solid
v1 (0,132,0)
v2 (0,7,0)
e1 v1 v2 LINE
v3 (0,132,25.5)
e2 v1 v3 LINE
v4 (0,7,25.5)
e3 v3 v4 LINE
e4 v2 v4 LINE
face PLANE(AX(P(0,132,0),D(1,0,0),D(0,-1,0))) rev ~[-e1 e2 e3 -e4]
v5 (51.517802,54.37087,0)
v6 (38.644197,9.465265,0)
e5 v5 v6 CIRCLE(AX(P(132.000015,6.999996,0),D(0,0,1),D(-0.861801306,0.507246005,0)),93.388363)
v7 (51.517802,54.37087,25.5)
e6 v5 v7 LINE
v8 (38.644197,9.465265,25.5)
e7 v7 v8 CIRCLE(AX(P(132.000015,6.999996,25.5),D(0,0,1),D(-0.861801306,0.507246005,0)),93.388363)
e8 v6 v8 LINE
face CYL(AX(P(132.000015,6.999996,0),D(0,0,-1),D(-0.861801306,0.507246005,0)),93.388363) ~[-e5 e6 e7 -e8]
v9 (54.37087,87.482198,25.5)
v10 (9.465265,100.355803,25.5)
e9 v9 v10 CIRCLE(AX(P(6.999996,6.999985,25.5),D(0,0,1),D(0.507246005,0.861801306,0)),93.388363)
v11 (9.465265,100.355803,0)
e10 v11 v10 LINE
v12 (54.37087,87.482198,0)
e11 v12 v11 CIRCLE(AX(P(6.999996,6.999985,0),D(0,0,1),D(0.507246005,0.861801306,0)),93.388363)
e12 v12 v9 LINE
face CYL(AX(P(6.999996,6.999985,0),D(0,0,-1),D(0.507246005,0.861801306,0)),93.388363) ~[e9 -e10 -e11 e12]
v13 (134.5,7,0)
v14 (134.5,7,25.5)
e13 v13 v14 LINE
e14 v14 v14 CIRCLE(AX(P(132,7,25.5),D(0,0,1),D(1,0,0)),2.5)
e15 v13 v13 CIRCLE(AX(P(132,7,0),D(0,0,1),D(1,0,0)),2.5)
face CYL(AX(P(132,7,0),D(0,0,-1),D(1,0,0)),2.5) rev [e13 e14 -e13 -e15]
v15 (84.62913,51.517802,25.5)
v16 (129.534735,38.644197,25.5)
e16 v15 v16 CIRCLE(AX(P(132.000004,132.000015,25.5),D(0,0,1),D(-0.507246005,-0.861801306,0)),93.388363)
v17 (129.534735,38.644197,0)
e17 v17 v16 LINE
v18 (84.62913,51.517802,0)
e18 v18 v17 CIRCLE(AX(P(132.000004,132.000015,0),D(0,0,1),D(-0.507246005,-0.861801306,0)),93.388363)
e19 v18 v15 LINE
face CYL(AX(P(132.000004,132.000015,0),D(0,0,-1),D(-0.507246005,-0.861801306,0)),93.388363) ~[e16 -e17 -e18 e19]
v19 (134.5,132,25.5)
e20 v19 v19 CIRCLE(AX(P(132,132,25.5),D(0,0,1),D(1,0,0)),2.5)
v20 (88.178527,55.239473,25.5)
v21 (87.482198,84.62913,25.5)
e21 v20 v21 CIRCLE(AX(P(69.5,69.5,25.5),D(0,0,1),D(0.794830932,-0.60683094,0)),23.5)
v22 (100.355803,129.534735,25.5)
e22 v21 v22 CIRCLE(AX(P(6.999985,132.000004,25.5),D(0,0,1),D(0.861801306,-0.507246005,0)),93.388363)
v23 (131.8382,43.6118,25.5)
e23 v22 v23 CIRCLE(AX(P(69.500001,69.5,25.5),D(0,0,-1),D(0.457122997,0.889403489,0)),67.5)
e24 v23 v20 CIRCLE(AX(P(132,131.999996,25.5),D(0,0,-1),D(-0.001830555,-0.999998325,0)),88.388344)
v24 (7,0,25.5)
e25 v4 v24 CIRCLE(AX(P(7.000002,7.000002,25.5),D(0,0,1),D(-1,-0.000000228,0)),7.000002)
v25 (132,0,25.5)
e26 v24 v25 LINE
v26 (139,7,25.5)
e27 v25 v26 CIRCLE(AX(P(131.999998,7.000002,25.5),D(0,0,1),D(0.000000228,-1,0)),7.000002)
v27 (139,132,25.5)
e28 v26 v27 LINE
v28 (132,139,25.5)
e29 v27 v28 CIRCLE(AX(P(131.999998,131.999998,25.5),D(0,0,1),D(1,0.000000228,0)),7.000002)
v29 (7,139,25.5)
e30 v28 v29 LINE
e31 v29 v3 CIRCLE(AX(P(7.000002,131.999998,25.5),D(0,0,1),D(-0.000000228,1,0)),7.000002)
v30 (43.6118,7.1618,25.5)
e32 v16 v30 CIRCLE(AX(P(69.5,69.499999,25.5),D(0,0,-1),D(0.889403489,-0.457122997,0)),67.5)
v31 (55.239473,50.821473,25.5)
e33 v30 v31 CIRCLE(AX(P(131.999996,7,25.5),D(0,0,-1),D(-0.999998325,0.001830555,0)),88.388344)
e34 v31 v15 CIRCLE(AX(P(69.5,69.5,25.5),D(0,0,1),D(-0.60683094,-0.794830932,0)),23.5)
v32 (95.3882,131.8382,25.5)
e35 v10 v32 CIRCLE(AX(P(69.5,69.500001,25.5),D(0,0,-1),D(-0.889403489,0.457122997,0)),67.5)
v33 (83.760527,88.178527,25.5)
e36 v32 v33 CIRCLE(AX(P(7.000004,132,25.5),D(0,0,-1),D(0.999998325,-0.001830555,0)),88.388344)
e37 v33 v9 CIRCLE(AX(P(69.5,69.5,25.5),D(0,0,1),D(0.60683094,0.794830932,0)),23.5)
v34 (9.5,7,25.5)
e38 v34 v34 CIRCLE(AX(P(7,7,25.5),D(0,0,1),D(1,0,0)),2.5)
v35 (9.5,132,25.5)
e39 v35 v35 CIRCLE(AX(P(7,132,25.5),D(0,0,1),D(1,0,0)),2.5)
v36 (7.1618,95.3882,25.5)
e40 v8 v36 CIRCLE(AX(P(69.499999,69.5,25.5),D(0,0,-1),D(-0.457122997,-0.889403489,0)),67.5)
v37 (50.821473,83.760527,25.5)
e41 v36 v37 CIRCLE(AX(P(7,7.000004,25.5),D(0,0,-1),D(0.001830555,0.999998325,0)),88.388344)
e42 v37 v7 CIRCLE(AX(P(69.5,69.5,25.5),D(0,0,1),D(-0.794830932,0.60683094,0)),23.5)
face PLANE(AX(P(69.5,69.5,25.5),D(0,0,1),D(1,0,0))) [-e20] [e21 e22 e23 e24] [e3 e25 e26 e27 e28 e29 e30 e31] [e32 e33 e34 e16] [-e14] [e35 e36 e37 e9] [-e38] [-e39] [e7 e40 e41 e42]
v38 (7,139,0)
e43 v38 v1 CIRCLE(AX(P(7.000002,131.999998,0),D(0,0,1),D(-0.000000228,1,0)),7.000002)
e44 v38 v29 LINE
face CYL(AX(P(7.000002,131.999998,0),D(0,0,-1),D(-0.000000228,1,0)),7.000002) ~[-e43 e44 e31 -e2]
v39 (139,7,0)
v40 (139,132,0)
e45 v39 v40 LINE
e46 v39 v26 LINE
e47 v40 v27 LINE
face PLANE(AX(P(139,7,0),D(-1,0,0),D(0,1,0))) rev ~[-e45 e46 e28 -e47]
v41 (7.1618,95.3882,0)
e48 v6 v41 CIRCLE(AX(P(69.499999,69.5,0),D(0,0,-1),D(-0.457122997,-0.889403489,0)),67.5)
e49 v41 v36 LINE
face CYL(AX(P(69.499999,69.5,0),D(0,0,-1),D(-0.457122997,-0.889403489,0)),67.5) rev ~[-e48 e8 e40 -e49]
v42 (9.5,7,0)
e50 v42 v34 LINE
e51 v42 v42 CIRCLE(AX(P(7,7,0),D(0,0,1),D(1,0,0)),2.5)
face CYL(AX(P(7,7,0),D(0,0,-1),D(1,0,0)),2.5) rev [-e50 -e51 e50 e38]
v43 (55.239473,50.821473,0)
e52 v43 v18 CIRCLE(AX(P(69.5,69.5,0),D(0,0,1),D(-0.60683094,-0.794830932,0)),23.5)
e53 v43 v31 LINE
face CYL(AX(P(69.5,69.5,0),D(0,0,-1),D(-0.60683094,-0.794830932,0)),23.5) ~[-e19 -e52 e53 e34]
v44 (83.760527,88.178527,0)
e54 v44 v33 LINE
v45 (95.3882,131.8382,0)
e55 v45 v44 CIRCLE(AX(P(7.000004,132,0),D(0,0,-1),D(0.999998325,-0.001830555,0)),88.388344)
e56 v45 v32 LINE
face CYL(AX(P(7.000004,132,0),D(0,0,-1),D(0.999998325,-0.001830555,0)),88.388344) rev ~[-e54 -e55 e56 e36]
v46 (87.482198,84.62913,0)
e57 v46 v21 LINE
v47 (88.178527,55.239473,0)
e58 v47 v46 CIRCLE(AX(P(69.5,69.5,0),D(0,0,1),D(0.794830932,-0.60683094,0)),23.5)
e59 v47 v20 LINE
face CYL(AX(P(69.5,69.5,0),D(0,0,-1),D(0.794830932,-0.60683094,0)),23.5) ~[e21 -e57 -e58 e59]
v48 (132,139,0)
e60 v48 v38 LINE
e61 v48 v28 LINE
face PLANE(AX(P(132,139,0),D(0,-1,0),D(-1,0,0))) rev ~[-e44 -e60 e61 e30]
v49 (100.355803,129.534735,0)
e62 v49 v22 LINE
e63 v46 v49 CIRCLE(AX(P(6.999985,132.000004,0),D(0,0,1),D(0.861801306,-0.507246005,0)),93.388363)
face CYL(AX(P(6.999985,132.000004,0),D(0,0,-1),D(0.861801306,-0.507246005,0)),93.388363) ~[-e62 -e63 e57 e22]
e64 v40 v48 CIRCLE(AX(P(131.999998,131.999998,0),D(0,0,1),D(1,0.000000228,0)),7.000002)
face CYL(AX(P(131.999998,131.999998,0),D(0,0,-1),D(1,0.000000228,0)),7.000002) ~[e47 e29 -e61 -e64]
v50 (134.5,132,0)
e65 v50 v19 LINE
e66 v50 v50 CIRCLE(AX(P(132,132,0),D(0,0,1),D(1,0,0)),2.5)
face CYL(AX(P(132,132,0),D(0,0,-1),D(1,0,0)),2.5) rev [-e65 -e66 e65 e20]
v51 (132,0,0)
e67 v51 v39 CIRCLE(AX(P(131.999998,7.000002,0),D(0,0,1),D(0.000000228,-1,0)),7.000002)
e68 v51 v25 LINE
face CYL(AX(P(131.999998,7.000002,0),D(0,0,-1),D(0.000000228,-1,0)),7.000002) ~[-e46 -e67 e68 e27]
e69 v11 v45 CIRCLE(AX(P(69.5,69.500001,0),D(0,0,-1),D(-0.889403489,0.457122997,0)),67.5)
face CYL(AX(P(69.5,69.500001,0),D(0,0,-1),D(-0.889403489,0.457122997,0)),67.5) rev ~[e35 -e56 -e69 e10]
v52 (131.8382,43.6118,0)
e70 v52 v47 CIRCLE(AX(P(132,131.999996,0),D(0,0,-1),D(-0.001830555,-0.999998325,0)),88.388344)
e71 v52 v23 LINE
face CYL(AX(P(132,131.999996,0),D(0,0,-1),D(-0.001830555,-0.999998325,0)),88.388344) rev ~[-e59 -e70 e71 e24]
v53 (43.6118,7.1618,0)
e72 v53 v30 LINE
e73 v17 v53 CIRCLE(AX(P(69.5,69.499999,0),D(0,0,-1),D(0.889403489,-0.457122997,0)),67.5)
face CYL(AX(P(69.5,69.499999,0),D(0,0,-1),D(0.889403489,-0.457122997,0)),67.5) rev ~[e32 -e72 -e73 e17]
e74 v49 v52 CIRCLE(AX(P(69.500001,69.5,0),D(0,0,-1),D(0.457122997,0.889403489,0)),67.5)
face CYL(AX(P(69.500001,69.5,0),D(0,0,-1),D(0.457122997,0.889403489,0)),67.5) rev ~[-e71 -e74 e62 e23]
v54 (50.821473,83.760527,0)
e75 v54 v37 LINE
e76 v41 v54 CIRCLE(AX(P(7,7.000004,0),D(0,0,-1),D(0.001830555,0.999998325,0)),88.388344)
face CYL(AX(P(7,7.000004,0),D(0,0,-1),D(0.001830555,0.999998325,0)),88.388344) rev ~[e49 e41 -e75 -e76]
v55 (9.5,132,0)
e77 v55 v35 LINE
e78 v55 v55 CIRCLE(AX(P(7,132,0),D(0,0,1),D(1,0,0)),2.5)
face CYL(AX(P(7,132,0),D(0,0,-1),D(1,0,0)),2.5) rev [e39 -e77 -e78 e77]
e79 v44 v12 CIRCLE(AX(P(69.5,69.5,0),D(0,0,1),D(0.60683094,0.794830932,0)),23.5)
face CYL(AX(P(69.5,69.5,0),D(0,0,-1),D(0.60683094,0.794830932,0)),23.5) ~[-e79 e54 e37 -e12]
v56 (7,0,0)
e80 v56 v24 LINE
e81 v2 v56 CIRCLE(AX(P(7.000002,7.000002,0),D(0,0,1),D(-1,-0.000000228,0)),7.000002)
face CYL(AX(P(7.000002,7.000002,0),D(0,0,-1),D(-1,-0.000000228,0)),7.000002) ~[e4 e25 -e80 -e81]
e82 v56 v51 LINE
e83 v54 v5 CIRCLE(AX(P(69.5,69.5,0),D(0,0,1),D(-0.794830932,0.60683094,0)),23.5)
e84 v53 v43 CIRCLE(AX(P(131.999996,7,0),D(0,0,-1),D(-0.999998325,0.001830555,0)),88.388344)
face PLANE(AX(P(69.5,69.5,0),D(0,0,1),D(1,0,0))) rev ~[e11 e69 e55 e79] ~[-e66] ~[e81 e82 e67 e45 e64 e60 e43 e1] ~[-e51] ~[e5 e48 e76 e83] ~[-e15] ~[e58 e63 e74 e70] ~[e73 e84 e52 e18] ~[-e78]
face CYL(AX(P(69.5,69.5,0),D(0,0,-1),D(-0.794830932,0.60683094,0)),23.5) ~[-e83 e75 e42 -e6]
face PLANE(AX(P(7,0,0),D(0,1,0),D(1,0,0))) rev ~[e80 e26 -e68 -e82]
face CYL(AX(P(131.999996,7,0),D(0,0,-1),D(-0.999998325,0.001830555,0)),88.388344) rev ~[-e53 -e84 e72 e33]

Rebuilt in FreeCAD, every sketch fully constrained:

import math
import FreeCAD as App
import Part
import Sketcher
from FreeCAD import Vector

doc = App.newDocument("Part")
body = doc.addObject("PartDesign::Body", "Body")

sketch1 = body.newObject("Sketcher::SketchObject", "Sketch")
sketch1.AttachmentSupport = (doc.getObject("XY_Plane"), [""])
sketch1.MapMode = "FlatFace"
sketch1.addGeometry(Part.ArcOfCircle(Part.Circle(Vector(7, 7, 0), Vector(0, 0, 1), 7), math.radians(-180), math.radians(-90)), False)
sketch1.addGeometry(Part.LineSegment(Vector(7, 0, 0), Vector(132, 0, 0)), False)
sketch1.addGeometry(Part.ArcOfCircle(Part.Circle(Vector(132, 7, 0), Vector(0, 0, 1), 7), math.radians(-90), math.radians(0)), False)
sketch1.addGeometry(Part.LineSegment(Vector(139, 7, 0), Vector(139, 132, 0)), False)
sketch1.addGeometry(Part.ArcOfCircle(Part.Circle(Vector(132, 132, 0), Vector(0, 0, 1), 7), math.radians(0), math.radians(90)), False)
sketch1.addGeometry(Part.LineSegment(Vector(132, 139, 0), Vector(7, 139, 0)), False)
sketch1.addGeometry(Part.ArcOfCircle(Part.Circle(Vector(7, 132, 0), Vector(0, 0, 1), 7), math.radians(90), math.radians(180)), False)
sketch1.addGeometry(Part.LineSegment(Vector(0, 132, 0), Vector(0, 7, 0)), False)
sketch1.addGeometry(Part.Circle(Vector(7, 7, 0), Vector(0, 0, 1), 2.5), False)
sketch1.addGeometry(Part.ArcOfCircle(Part.Circle(Vector(7, 7, 0), Vector(0, 0, 1), 88.4), math.radians(60), math.radians(90)), False)
sketch1.addGeometry(Part.ArcOfCircle(Part.Circle(Vector(69.5, 69.5, 0), Vector(0, 0, 1), 23.5), math.radians(143), math.radians(220)), False)
sketch1.addGeometry(Part.ArcOfCircle(Part.Circle(Vector(132, 7, 0), Vector(0, 0, 1), 93.4), math.radians(150), math.radians(178)), False)
sketch1.addGeometry(Part.ArcOfCircle(Part.Circle(Vector(69.5, 69.5, 0), Vector(0, 0, 1), 67.5), math.radians(157), math.radians(243)), False)
sketch1.addGeometry(Part.ArcOfCircle(Part.Circle(Vector(69.5, 69.5, 0), Vector(0, 0, 1), 67.5), math.radians(-113), math.radians(-27)), False)
sketch1.addGeometry(Part.ArcOfCircle(Part.Circle(Vector(132, 7, 0), Vector(0, 0, 1), 88.4), math.radians(150), math.radians(180)), False)
sketch1.addGeometry(Part.ArcOfCircle(Part.Circle(Vector(69.5, 69.5, 0), Vector(0, 0, 1), 23.5), math.radians(-127), math.radians(-50)), False)
sketch1.addGeometry(Part.ArcOfCircle(Part.Circle(Vector(132, 132, 0), Vector(0, 0, 1), 93.4), math.radians(-120), math.radians(-92)), False)
sketch1.addGeometry(Part.Circle(Vector(132, 7, 0), Vector(0, 0, 1), 2.5), False)
sketch1.addGeometry(Part.Circle(Vector(7, 132, 0), Vector(0, 0, 1), 2.5), False)
sketch1.addGeometry(Part.ArcOfCircle(Part.Circle(Vector(7, 7, 0), Vector(0, 0, 1), 93.4), math.radians(60), math.radians(88)), False)
sketch1.addGeometry(Part.ArcOfCircle(Part.Circle(Vector(69.5, 69.5, 0), Vector(0, 0, 1), 67.5), math.radians(67), math.radians(153)), False)
sketch1.addGeometry(Part.ArcOfCircle(Part.Circle(Vector(7, 132, 0), Vector(0, 0, 1), 88.4), math.radians(-30), math.radians(0)), False)
sketch1.addGeometry(Part.ArcOfCircle(Part.Circle(Vector(69.5, 69.5, 0), Vector(0, 0, 1), 23.5), math.radians(53), math.radians(130)), False)
sketch1.addGeometry(Part.ArcOfCircle(Part.Circle(Vector(132, 132, 0), Vector(0, 0, 1), 88.4), math.radians(-120), math.radians(-90)), False)
sketch1.addGeometry(Part.ArcOfCircle(Part.Circle(Vector(69.5, 69.5, 0), Vector(0, 0, 1), 23.5), math.radians(-37), math.radians(40)), False)
sketch1.addGeometry(Part.ArcOfCircle(Part.Circle(Vector(7, 132, 0), Vector(0, 0, 1), 93.4), math.radians(-30), math.radians(-2)), False)
sketch1.addGeometry(Part.ArcOfCircle(Part.Circle(Vector(69.5, 69.5, 0), Vector(0, 0, 1), 67.5), math.radians(-23), math.radians(63)), False)
sketch1.addGeometry(Part.Circle(Vector(132, 132, 0), Vector(0, 0, 1), 2.5), False)
sketch1.addConstraint(Sketcher.Constraint("Tangent", 0, 2, 1, 1))
sketch1.addConstraint(Sketcher.Constraint("Tangent", 1, 2, 2, 1))
sketch1.addConstraint(Sketcher.Constraint("Tangent", 2, 2, 3, 1))
sketch1.addConstraint(Sketcher.Constraint("Tangent", 3, 2, 4, 1))
sketch1.addConstraint(Sketcher.Constraint("Tangent", 4, 2, 5, 1))
sketch1.addConstraint(Sketcher.Constraint("Tangent", 5, 2, 6, 1))
sketch1.addConstraint(Sketcher.Constraint("Tangent", 6, 2, 7, 1))
sketch1.addConstraint(Sketcher.Constraint("Tangent", 7, 2, 0, 1))
sketch1.addConstraint(Sketcher.Constraint("Coincident", 9, 1, 10, 1))
sketch1.addConstraint(Sketcher.Constraint("Coincident", 10, 2, 11, 1))
sketch1.addConstraint(Sketcher.Constraint("Coincident", 11, 2, 12, 2))
sketch1.addConstraint(Sketcher.Constraint("Coincident", 12, 1, 9, 2))
sketch1.addConstraint(Sketcher.Constraint("Coincident", 13, 1, 14, 2))
sketch1.addConstraint(Sketcher.Constraint("Coincident", 14, 1, 15, 1))
sketch1.addConstraint(Sketcher.Constraint("Coincident", 15, 2, 16, 1))
sketch1.addConstraint(Sketcher.Constraint("Coincident", 16, 2, 13, 2))
sketch1.addConstraint(Sketcher.Constraint("Coincident", 19, 2, 20, 2))
sketch1.addConstraint(Sketcher.Constraint("Coincident", 20, 1, 21, 2))
sketch1.addConstraint(Sketcher.Constraint("Coincident", 21, 1, 22, 1))
sketch1.addConstraint(Sketcher.Constraint("Coincident", 22, 2, 19, 1))
sketch1.addConstraint(Sketcher.Constraint("Coincident", 23, 1, 24, 1))
sketch1.addConstraint(Sketcher.Constraint("Coincident", 24, 2, 25, 1))
sketch1.addConstraint(Sketcher.Constraint("Coincident", 25, 2, 26, 2))
sketch1.addConstraint(Sketcher.Constraint("Coincident", 26, 1, 23, 2))
sketch1.addConstraint(Sketcher.Constraint("Horizontal", 1))
sketch1.addConstraint(Sketcher.Constraint("Vertical", 3))
sketch1.addConstraint(Sketcher.Constraint("Horizontal", 5))
sketch1.addConstraint(Sketcher.Constraint("Vertical", 7))
sketch1.addConstraint(Sketcher.Constraint("Coincident", 8, 3, 0, 3))
sketch1.addConstraint(Sketcher.Constraint("Coincident", 9, 3, 0, 3))
sketch1.addConstraint(Sketcher.Constraint("Coincident", 12, 3, 10, 3))
sketch1.addConstraint(Sketcher.Constraint("Coincident", 13, 3, 10, 3))
sketch1.addConstraint(Sketcher.Constraint("Coincident", 14, 3, 2, 3))
sketch1.addConstraint(Sketcher.Constraint("Coincident", 15, 3, 10, 3))
sketch1.addConstraint(Sketcher.Constraint("Coincident", 17, 3, 2, 3))
sketch1.addConstraint(Sketcher.Constraint("Coincident", 18, 3, 6, 3))
sketch1.addConstraint(Sketcher.Constraint("Coincident", 20, 3, 10, 3))
sketch1.addConstraint(Sketcher.Constraint("Coincident", 21, 3, 6, 3))
sketch1.addConstraint(Sketcher.Constraint("Coincident", 22, 3, 10, 3))
sketch1.addConstraint(Sketcher.Constraint("Coincident", 23, 3, 4, 3))
sketch1.addConstraint(Sketcher.Constraint("Coincident", 24, 3, 10, 3))
sketch1.addConstraint(Sketcher.Constraint("Coincident", 26, 3, 10, 3))
sketch1.addConstraint(Sketcher.Constraint("Coincident", 27, 3, 4, 3))
sketch1.addConstraint(Sketcher.Constraint("Equal", 0, 2))
sketch1.addConstraint(Sketcher.Constraint("Equal", 2, 4))
sketch1.addConstraint(Sketcher.Constraint("Equal", 4, 6))
sketch1.addConstraint(Sketcher.Constraint("Equal", 12, 13))
sketch1.addConstraint(Sketcher.Constraint("Equal", 9, 14))
sketch1.addConstraint(Sketcher.Constraint("Equal", 10, 15))
sketch1.addConstraint(Sketcher.Constraint("Equal", 11, 16))
sketch1.addConstraint(Sketcher.Constraint("Equal", 8, 17))
sketch1.addConstraint(Sketcher.Constraint("Equal", 17, 18))
sketch1.addConstraint(Sketcher.Constraint("Equal", 16, 19))
sketch1.addConstraint(Sketcher.Constraint("Equal", 13, 20))
sketch1.addConstraint(Sketcher.Constraint("Equal", 14, 21))
sketch1.addConstraint(Sketcher.Constraint("Equal", 15, 22))
sketch1.addConstraint(Sketcher.Constraint("Equal", 21, 23))
sketch1.addConstraint(Sketcher.Constraint("Equal", 22, 24))
sketch1.addConstraint(Sketcher.Constraint("Equal", 19, 25))
sketch1.addConstraint(Sketcher.Constraint("Equal", 20, 26))
sketch1.addConstraint(Sketcher.Constraint("Equal", 18, 27))
sketch1.addConstraint(Sketcher.Constraint("PointOnObject", 0, 2, -1))
sketch1.addConstraint(Sketcher.Constraint("PointOnObject", 6, 2, -2))
sketch1.addConstraint(Sketcher.Constraint("Equal", 5, 3))
sketch1.addConstraint(Sketcher.Constraint("Diameter", 8, 5.0))
sketch1.addConstraint(Sketcher.Constraint("Radius", 0, 7.000002))
sketch1.addConstraint(Sketcher.Constraint("Radius", 10, 23.5))
sketch1.addConstraint(Sketcher.Constraint("Radius", 12, 67.5))
sketch1.addConstraint(Sketcher.Constraint("DistanceX", 1, 1, 1, 2, 125.0))
sketch1.addConstraint(Sketcher.Constraint("DistanceX", -1, 1, 10, 3, 69.5))
sketch1.addConstraint(Sketcher.Constraint("DistanceY", -1, 1, 10, 3, 69.5))
sketch1.addConstraint(Sketcher.Constraint("Radius", 9, 88.388344))
sketch1.addConstraint(Sketcher.Constraint("Radius", 11, 93.388363))
sketch1.addConstraint(Sketcher.Constraint("DistanceX", -1, 1, 10, 2, 51.517802))
sketch1.addConstraint(Sketcher.Constraint("DistanceY", -1, 1, 15, 2, 51.517802))
sketch1.addConstraint(Sketcher.Constraint("DistanceY", -1, 1, 22, 2, 87.482198))
sketch1.addConstraint(Sketcher.Constraint("DistanceX", -1, 1, 24, 2, 87.482198))
sketch1.addConstraint(Sketcher.Constraint("DistanceX", 19, 3, 11, 2, 31.644201))
sketch1.addConstraint(Sketcher.Constraint("DistanceY", 11, 3, 16, 2, 31.644201))
sketch1.addConstraint(Sketcher.Constraint("DistanceY", 19, 2, 25, 3, 31.644201))
sketch1.addConstraint(Sketcher.Constraint("DistanceX", 25, 2, 16, 3, 31.644201))
pad1 = body.newObject("PartDesign::Pad", "Pad")
pad1.Profile = sketch1
pad1.Length = 25.5

doc.recompute()
